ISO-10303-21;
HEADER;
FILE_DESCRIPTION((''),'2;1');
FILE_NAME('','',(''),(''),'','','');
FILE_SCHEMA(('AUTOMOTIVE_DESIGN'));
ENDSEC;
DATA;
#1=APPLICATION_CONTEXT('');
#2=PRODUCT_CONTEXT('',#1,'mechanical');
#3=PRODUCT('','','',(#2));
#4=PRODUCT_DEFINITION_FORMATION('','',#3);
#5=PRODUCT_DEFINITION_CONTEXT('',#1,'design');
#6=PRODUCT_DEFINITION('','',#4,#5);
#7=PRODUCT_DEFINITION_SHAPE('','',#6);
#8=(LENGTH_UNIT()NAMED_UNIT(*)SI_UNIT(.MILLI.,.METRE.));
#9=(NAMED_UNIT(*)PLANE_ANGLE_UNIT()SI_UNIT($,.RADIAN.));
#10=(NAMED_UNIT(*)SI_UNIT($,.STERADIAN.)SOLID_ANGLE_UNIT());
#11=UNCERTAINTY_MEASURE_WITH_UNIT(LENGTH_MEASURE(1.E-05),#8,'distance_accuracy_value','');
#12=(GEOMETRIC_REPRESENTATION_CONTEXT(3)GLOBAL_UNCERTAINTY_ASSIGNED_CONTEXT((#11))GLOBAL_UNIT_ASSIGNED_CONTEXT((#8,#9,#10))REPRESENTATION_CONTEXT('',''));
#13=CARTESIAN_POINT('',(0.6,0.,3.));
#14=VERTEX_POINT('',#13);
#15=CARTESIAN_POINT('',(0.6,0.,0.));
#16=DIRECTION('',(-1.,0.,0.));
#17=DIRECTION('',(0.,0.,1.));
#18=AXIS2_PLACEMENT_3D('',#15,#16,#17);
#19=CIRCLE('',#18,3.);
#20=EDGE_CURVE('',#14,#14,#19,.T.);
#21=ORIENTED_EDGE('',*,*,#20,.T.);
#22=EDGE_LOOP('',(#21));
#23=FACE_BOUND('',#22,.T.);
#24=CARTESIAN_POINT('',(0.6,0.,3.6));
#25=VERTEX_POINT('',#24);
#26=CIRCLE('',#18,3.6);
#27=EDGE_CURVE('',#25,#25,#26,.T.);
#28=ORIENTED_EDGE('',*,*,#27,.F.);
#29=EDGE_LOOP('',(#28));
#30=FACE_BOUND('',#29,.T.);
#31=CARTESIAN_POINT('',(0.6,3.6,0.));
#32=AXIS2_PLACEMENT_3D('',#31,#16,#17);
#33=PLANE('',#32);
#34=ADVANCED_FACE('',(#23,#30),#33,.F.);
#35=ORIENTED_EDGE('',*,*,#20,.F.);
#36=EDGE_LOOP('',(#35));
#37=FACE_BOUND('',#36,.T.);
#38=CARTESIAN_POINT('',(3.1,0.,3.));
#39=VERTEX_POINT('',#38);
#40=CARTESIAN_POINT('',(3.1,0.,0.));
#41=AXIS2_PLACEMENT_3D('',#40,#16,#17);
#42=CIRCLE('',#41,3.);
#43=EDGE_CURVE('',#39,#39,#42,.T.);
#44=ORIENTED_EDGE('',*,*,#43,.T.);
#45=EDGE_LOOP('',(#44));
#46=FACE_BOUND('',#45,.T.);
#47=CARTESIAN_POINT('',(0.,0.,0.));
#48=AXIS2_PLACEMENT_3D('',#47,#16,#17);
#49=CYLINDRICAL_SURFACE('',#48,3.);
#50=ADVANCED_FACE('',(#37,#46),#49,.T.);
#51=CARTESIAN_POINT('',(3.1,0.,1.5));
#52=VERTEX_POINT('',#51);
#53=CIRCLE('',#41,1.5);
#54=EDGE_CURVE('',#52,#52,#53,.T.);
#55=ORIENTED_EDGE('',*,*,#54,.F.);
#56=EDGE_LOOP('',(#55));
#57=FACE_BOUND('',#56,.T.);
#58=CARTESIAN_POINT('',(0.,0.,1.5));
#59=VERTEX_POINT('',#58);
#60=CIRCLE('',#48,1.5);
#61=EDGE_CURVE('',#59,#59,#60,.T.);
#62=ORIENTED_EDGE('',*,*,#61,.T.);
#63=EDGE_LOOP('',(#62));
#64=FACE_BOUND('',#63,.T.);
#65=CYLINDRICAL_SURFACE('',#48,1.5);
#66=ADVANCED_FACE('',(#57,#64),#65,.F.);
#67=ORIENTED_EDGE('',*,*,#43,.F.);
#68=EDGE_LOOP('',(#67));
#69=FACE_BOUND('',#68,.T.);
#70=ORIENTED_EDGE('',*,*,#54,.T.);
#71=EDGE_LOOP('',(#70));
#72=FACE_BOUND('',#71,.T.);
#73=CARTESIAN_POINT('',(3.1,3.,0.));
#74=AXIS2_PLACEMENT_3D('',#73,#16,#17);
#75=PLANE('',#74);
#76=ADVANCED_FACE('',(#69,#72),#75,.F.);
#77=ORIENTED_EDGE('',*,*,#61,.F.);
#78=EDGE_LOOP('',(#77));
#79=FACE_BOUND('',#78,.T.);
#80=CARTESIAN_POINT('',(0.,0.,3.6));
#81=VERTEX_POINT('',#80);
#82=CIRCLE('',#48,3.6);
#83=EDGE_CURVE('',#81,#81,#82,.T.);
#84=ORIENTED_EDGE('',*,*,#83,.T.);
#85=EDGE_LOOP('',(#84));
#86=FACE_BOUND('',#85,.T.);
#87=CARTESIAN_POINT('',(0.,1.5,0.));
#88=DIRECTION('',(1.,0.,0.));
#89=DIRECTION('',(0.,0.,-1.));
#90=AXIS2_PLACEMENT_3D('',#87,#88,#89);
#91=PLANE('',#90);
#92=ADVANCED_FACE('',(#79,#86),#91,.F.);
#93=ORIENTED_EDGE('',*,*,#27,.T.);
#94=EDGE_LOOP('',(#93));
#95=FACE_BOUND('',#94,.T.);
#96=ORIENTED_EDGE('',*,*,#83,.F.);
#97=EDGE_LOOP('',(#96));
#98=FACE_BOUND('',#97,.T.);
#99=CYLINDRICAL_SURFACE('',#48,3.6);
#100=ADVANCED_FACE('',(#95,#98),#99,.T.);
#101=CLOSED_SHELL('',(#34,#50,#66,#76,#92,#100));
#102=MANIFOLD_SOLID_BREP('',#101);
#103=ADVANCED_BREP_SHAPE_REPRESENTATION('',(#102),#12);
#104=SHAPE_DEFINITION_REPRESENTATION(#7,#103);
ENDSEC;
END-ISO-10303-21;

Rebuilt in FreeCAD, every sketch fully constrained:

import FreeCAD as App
import Part
import Sketcher
from FreeCAD import Vector

doc = App.newDocument("Part")
body = doc.addObject("PartDesign::Body", "Body")

# Sketch on XY plane
sketch1 = doc.addObject("Sketcher::SketchObject", "Sketch")
body.addObject(sketch1)
sketch1.AttachmentSupport = (doc.XY_Plane, [""])
sketch1.MapMode = "FlatFace"
sketch1.addGeometry([
    Part.LineSegment(Vector(0, 3.6, 0), Vector(0, 1.5, 0)),  # 0
    Part.LineSegment(Vector(0, 1.5, 0), Vector(3.1, 1.5, 0)),  # 1
    Part.LineSegment(Vector(3.1, 1.5, 0), Vector(3.1, 3, 0)),  # 2
    Part.LineSegment(Vector(3.1, 3, 0), Vector(0.6, 3, 0)),  # 3
    Part.LineSegment(Vector(0.6, 3, 0), Vector(0.6, 3.6, 0)),  # 4
    Part.LineSegment(Vector(0.6, 3.6, 0), Vector(0, 3.6, 0)),  # 5
], False)
sketch1.addConstraint([
    Sketcher.Constraint("Coincident", 0, 2, 1, 1),
    Sketcher.Constraint("Coincident", 1, 2, 2, 1),
    Sketcher.Constraint("Coincident", 2, 2, 3, 1),
    Sketcher.Constraint("Coincident", 3, 2, 4, 1),
    Sketcher.Constraint("Coincident", 4, 2, 5, 1),
    Sketcher.Constraint("Coincident", 5, 2, 0, 1),
    Sketcher.Constraint("Vertical", 0),
    Sketcher.Constraint("Horizontal", 1),
    Sketcher.Constraint("Vertical", 2),
    Sketcher.Constraint("Horizontal", 3),
    Sketcher.Constraint("Vertical", 4),
    Sketcher.Constraint("Horizontal", 5),
    Sketcher.Constraint("PointOnObject", 0, 2, -2),
    Sketcher.Constraint("Equal", 5, 4),
    Sketcher.Constraint("DistanceX", 1, 1, 1, 2, 3.1),
    Sketcher.Constraint("DistanceX", 3, 2, 3, 1, 2.5),
    Sketcher.Constraint("DistanceY", 0, 2, 0, 1, 2.1),
    Sketcher.Constraint("DistanceY", -1, 1, 2, 2, 3.0),
])
revolution = doc.addObject("PartDesign::Revolution", "Revolution")
body.addObject(revolution)
revolution.Profile = sketch1
revolution.ReferenceAxis = (sketch1, ["H_Axis"])
revolution.Angle = 360

doc.recompute()
